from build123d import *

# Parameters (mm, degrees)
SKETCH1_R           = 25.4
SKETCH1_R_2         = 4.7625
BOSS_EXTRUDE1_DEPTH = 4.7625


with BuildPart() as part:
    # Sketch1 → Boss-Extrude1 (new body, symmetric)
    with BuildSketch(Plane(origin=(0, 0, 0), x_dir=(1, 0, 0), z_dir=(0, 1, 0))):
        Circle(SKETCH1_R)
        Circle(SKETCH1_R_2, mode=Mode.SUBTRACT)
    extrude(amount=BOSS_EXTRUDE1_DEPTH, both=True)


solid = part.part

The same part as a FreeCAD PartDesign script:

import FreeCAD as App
import Part
import Sketcher

V = App.Vector
Q = App.Units.Quantity

doc = App.newDocument("Part")
body = doc.addObject("PartDesign::Body", "Body")

sketch1 = body.newObject("Sketcher::SketchObject", "Sketch")
sketch1.AttachmentSupport = (doc.getObject("XZ_Plane"), [""])
sketch1.MapMode = "FlatFace"
sketch1.addGeometry([
    Part.Circle(V(0, 0, 0), V(0, 0, 1), 25.4),
    Part.Circle(V(0, 0, 0), V(0, 0, 1), 4.8),
], False)
sketch1.addConstraint([
    Sketcher.Constraint("Coincident", 0, 3, -1, 1),
    Sketcher.Constraint("Coincident", 1, 3, -1, 1),
    Sketcher.Constraint("Diameter", 0, Q("2 in")),
    Sketcher.Constraint("Diameter", 1, Q("0.375 in")),
])
pad1 = body.newObject("PartDesign::Pad", "Pad")
pad1.Profile = sketch1
pad1.Length = Q("0.375 in")
pad1.Midplane = True

doc.recompute()
